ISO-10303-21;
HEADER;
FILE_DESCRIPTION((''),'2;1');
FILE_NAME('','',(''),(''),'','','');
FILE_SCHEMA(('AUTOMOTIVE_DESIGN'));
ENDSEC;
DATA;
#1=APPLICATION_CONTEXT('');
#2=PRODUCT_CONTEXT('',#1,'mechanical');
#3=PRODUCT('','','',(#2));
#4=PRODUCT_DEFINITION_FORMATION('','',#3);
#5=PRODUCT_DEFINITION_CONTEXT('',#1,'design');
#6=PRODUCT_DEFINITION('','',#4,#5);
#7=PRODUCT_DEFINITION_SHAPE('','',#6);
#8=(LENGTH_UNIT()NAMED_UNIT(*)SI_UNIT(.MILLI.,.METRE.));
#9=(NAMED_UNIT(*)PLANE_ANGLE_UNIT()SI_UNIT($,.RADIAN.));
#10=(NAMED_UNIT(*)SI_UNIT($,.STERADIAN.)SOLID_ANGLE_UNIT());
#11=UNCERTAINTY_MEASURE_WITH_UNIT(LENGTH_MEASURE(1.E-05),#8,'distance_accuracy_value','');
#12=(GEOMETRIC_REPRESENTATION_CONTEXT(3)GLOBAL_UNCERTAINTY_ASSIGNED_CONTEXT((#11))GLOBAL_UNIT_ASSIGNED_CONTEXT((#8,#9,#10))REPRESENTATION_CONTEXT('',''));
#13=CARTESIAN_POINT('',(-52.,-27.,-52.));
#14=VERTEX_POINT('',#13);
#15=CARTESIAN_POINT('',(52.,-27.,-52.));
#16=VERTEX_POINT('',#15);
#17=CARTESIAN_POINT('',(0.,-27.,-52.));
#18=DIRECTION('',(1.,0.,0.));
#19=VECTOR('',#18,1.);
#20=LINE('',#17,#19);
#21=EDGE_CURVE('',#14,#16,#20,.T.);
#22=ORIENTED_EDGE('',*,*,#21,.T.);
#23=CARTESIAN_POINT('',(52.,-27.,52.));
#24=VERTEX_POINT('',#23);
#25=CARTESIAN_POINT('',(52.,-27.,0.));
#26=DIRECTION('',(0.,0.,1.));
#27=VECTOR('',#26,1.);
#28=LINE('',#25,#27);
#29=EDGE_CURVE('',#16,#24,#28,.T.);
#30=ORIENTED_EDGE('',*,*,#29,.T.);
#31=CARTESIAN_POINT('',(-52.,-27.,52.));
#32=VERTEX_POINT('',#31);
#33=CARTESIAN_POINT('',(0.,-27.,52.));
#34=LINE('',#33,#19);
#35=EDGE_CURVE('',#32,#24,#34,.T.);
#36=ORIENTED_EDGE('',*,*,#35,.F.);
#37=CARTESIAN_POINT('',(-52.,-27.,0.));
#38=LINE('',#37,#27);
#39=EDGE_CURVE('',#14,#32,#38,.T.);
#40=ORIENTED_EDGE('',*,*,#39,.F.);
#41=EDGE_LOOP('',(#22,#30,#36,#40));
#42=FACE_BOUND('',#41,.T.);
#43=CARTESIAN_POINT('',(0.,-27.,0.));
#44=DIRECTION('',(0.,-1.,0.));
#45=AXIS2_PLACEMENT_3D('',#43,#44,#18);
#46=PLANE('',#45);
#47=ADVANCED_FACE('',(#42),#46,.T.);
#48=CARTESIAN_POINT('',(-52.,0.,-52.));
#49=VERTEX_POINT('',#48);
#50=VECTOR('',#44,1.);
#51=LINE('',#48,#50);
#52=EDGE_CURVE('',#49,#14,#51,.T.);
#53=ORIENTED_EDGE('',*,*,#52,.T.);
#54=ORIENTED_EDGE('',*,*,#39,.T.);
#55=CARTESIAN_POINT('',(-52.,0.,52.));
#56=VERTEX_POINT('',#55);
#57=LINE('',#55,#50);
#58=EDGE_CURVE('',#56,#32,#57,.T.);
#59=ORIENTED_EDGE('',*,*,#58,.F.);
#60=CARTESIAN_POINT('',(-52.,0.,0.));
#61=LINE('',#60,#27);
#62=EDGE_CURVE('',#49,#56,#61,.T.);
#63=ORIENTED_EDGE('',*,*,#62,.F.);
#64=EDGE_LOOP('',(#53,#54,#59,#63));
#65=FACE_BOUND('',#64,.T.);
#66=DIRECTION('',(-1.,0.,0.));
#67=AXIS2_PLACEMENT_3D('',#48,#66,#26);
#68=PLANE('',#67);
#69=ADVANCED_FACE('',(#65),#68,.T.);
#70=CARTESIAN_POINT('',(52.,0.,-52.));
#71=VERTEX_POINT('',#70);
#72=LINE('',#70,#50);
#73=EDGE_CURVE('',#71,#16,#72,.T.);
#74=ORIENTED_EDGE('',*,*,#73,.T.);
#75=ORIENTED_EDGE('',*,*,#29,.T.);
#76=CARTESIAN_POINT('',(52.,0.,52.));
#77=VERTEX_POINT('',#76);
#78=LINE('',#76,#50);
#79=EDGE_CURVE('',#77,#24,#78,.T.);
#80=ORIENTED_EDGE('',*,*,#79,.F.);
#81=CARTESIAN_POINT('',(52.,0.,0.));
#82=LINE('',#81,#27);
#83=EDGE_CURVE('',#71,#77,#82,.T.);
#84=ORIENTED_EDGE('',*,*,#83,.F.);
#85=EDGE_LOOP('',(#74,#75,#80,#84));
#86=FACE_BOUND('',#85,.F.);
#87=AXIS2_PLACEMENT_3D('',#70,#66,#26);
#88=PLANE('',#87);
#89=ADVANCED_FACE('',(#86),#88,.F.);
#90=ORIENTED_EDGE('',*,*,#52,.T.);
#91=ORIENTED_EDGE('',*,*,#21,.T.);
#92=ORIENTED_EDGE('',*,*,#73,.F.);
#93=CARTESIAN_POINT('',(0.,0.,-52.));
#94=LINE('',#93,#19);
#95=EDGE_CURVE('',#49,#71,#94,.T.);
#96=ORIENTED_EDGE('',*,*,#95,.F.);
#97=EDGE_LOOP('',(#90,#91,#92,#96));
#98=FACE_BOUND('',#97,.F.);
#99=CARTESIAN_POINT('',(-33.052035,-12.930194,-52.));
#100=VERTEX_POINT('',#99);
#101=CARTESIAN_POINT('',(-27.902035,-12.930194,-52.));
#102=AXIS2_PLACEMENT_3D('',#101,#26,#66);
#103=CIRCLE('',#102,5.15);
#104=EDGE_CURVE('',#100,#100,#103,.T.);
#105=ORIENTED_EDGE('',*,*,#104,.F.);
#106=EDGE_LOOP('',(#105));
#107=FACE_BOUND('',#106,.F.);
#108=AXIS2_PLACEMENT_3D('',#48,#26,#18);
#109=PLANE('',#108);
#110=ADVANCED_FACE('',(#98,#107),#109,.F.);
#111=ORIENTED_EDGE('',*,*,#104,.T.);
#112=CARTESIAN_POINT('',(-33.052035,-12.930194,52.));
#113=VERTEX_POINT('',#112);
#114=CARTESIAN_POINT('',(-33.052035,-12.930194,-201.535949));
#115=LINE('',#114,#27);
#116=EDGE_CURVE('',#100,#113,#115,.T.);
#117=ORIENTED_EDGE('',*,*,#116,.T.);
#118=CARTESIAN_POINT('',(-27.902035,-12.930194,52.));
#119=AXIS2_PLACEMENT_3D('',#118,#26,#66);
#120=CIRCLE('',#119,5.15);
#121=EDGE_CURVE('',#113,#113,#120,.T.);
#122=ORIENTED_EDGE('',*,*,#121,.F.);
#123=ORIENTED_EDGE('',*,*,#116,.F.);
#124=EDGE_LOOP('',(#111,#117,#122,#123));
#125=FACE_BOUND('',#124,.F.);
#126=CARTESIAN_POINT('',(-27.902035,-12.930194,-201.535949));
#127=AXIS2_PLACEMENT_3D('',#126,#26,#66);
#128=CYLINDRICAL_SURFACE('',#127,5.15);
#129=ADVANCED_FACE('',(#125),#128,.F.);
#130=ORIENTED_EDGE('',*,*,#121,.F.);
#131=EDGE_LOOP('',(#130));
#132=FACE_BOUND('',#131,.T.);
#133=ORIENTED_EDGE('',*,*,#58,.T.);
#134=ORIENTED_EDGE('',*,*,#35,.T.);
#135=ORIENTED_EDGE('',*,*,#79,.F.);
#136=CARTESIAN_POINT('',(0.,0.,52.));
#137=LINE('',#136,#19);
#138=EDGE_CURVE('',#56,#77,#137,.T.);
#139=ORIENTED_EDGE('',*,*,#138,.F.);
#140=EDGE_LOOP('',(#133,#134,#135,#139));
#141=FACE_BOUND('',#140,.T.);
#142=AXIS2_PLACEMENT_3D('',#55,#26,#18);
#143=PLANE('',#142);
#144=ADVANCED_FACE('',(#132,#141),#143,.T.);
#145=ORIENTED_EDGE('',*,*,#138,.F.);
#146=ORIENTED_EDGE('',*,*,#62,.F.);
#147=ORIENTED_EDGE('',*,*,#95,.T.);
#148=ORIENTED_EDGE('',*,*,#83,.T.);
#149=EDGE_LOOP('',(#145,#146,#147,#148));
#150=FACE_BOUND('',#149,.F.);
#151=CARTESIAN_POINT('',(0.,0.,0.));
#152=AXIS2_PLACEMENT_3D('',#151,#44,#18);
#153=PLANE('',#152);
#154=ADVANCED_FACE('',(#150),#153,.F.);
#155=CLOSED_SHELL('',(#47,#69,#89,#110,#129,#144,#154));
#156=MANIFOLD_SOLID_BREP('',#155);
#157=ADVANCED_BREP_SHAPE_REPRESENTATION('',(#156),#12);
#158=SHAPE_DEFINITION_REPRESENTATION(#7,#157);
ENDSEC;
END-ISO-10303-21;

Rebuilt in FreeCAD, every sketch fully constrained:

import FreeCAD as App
import Part
import Sketcher

doc = App.newDocument("Part")
body = doc.addObject("PartDesign::Body", "Body")

# Sketch on XZ plane
sketch1 = body.newObject("Sketcher::SketchObject", "Sketch")
sketch1.AttachmentSupport = (doc.getObject("XZ_Plane"), [""])
sketch1.MapMode = "FlatFace"
sketch1.addGeometry([
    Part.LineSegment(App.Vector(-52, 52, 0), App.Vector(-52, -52, 0)),
    Part.LineSegment(App.Vector(-52, -52, 0), App.Vector(52, -52, 0)),
    Part.LineSegment(App.Vector(52, -52, 0), App.Vector(52, 52, 0)),
    Part.LineSegment(App.Vector(52, 52, 0), App.Vector(-52, 52, 0)),
], False)
sketch1.addConstraint([
    Sketcher.Constraint("Coincident", 0, 2, 1, 1),
    Sketcher.Constraint("Coincident", 1, 2, 2, 1),
    Sketcher.Constraint("Coincident", 2, 2, 3, 1),
    Sketcher.Constraint("Coincident", 3, 2, 0, 1),
    Sketcher.Constraint("Vertical", 0),
    Sketcher.Constraint("Horizontal", 1),
    Sketcher.Constraint("Vertical", 2),
    Sketcher.Constraint("Horizontal", 3),
    Sketcher.Constraint("Symmetric", 0, 2, 2, 2, -1, 1),
    Sketcher.Constraint("Equal", 3, 0),
    Sketcher.Constraint("DistanceX", 1, 1, 1, 2, 104.0),
])
pad1 = body.newObject("PartDesign::Pad", "Pad")
pad1.Profile = sketch1
pad1.Length = 27

# Sketch on XY plane
sketch2 = body.newObject("Sketcher::SketchObject", "Sketch001")
sketch2.AttachmentSupport = (doc.getObject("XY_Plane"), [""])
sketch2.MapMode = "FlatFace"
sketch2.AttachmentOffset = App.Placement(App.Vector(0, 0, -52), App.Rotation())
sketch2.addGeometry(Part.Circle(App.Vector(-27.902035, -12.930194, 0), App.Vector(0, 0, 1), 5.15), False)
sketch2.addConstraint([
    Sketcher.Constraint("Diameter", 0, 10.3),
    Sketcher.Constraint("DistanceX", 0, 3, -1, 1, 27.902035),
    Sketcher.Constraint("DistanceY", 0, 3, -1, 1, 12.930194),
])
doc.recompute()
hole = body.newObject("PartDesign::Hole", "Hole")
hole.Profile = sketch2
hole.ThreadType = "None"
hole.Diameter = 10.3
hole.DepthType = "ThroughAll"
hole.Reversed = True

doc.recompute()
